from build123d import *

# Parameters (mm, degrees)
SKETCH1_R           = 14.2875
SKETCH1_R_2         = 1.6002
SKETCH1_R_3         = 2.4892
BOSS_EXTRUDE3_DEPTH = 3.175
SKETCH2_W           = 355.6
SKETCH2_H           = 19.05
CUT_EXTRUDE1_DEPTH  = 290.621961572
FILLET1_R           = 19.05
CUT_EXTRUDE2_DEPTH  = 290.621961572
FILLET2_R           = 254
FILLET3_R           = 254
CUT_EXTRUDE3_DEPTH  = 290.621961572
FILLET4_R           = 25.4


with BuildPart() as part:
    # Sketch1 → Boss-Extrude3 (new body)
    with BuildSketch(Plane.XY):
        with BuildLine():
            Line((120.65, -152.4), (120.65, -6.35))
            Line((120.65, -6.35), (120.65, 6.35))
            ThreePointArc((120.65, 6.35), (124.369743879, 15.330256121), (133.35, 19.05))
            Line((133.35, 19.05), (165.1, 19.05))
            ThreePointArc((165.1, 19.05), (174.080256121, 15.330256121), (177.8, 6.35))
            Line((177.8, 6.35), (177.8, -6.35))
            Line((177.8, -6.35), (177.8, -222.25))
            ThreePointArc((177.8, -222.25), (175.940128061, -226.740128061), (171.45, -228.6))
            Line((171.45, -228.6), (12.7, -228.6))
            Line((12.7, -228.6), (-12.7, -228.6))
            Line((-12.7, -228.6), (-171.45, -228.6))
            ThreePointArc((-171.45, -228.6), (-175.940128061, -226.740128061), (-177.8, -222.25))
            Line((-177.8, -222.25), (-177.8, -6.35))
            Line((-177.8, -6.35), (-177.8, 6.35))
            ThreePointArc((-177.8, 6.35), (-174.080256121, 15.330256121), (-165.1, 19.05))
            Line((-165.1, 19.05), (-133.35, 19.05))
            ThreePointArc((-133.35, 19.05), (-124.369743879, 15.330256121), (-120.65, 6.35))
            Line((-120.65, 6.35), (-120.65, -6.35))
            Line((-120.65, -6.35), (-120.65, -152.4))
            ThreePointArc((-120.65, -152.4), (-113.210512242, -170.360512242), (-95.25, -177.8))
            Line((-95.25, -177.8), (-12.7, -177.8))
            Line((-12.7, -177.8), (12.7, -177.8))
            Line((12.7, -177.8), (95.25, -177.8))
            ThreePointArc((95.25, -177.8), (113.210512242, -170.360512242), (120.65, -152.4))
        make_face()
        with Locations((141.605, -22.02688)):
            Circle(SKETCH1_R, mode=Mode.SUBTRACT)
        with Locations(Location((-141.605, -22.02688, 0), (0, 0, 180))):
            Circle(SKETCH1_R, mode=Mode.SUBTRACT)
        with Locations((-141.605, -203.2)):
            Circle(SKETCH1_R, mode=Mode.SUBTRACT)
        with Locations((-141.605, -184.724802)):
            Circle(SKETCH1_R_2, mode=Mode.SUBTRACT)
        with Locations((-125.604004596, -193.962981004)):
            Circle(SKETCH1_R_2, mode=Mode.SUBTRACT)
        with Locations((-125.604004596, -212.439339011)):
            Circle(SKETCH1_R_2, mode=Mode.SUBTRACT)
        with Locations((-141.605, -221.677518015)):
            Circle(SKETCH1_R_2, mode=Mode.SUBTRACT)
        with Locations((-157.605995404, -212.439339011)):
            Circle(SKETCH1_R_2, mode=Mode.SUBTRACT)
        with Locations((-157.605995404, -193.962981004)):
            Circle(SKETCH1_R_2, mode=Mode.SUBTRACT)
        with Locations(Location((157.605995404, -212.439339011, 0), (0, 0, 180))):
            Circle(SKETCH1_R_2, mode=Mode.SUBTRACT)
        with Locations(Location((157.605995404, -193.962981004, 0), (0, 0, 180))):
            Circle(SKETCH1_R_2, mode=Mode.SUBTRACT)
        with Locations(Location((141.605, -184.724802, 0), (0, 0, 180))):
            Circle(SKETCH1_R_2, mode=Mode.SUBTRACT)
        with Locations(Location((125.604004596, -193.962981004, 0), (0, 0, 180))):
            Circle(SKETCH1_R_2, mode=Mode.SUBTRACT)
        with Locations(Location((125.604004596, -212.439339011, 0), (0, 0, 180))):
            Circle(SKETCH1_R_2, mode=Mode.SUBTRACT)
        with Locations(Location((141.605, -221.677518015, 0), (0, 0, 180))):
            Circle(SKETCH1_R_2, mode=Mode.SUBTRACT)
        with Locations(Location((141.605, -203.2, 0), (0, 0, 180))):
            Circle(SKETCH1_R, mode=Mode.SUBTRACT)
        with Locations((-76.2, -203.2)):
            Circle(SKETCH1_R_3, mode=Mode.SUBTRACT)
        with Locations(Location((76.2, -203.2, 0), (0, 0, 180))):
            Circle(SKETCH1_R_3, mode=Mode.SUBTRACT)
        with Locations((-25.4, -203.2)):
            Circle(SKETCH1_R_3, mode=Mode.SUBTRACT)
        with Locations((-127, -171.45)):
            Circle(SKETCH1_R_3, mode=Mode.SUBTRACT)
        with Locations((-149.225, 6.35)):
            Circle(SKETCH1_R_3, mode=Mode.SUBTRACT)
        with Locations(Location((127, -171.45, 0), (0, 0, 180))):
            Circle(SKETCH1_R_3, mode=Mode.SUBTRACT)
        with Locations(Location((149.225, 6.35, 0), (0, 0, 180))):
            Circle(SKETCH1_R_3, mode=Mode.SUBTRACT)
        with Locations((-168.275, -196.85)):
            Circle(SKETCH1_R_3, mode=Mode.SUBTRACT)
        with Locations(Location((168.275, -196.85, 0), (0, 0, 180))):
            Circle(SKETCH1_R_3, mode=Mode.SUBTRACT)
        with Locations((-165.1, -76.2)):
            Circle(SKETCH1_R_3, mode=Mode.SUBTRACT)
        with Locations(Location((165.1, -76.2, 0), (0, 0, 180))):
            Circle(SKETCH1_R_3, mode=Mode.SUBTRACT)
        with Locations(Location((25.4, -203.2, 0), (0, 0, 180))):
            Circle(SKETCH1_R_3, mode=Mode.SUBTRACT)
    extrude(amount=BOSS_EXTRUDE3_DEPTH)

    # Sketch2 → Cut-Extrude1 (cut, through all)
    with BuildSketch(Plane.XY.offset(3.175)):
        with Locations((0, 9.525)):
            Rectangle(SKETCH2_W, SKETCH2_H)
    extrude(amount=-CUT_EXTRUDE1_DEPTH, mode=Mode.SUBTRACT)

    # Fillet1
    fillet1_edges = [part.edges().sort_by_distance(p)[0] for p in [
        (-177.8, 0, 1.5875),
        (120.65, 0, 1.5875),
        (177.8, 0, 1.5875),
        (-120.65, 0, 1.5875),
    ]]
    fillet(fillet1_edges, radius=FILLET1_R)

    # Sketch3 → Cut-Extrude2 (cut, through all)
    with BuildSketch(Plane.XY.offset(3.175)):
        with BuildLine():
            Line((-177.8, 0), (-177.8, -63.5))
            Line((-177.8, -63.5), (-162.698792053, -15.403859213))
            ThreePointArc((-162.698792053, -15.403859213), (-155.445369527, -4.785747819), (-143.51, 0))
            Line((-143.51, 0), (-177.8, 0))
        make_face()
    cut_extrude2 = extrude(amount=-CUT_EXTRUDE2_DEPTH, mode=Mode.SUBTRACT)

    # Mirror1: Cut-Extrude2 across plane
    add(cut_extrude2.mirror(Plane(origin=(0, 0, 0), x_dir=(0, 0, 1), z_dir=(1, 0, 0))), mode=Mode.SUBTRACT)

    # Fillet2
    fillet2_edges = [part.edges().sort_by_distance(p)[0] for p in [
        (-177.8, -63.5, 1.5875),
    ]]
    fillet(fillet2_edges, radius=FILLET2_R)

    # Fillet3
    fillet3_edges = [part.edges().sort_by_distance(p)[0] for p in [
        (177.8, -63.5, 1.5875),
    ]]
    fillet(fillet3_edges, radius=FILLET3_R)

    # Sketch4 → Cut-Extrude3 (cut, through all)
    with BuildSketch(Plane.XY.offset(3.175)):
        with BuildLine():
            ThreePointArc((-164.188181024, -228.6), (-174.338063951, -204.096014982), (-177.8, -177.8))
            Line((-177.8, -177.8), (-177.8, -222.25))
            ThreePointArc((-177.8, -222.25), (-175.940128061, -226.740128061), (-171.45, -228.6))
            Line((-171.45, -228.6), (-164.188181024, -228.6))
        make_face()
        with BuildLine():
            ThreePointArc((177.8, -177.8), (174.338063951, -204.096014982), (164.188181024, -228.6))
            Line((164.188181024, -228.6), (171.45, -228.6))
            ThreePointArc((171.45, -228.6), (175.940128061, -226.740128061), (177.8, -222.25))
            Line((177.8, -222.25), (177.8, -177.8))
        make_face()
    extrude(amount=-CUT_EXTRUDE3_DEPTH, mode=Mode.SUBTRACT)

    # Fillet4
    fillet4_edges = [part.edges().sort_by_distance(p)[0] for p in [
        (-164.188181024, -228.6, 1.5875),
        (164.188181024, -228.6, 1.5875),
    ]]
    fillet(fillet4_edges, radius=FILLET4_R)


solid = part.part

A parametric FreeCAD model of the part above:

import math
import FreeCAD as App
import Part
import Sketcher

V = App.Vector
Q = App.Units.Quantity


def edges_at(feature, points):
    """Names of the edges that pass closest to the given points."""
    edges = feature.Shape.Edges
    near = lambda p: min(range(len(edges)), key=lambda i: edges[i].distToShape(Part.Vertex(*p))[0])
    return sorted({f"Edge{near(p) + 1}" for p in points})

doc = App.newDocument("Part")
body = doc.addObject("PartDesign::Body", "Body")

sketch1 = body.newObject("Sketcher::SketchObject", "Sketch")
sketch1.AttachmentSupport = (doc.getObject("XY_Plane"), [""])
sketch1.MapMode = "FlatFace"
sketch1.addGeometry(Part.LineSegment(V(120.7, 6.3, 0), V(120.7, -152.4, 0)), False)
sketch1.addGeometry(Part.ArcOfCircle(Part.Circle(V(95.2, -152.4, 0), V(0, 0, 1), 25.4), math.radians(-90), math.radians(0)), False)
sketch1.addGeometry(Part.LineSegment(V(95.2, -177.8, 0), V(-95.2, -177.8, 0)), False)
sketch1.addGeometry(Part.ArcOfCircle(Part.Circle(V(-95.2, -152.4, 0), V(0, 0, 1), 25.4), math.radians(180), math.radians(270)), False)
sketch1.addGeometry(Part.LineSegment(V(-120.7, -152.4, 0), V(-120.7, 6.3, 0)), False)
sketch1.addGeometry(Part.ArcOfCircle(Part.Circle(V(-133.3, 6.3, 0), V(0, 0, 1), 12.7), math.radians(0), math.radians(90)), False)
sketch1.addGeometry(Part.LineSegment(V(-133.3, 19.1, 0), V(-165.1, 19.1, 0)), False)
sketch1.addGeometry(Part.ArcOfCircle(Part.Circle(V(-165.1, 6.3, 0), V(0, 0, 1), 12.7), math.radians(90), math.radians(180)), False)
sketch1.addGeometry(Part.LineSegment(V(-177.8, 6.3, 0), V(-177.8, -222.2, 0)), False)
sketch1.addGeometry(Part.ArcOfCircle(Part.Circle(V(-171.5, -222.3, 0), V(0, 0, 1), 6.3), math.radians(180), math.radians(270)), False)
sketch1.addGeometry(Part.LineSegment(V(-171.4, -228.6, 0), V(171.4, -228.6, 0)), False)
sketch1.addGeometry(Part.ArcOfCircle(Part.Circle(V(171.5, -222.3, 0), V(0, 0, 1), 6.3), math.radians(-90), math.radians(0)), False)
sketch1.addGeometry(Part.LineSegment(V(177.8, -222.2, 0), V(177.8, 6.3, 0)), False)
sketch1.addGeometry(Part.ArcOfCircle(Part.Circle(V(165.1, 6.3, 0), V(0, 0, 1), 12.7), math.radians(0), math.radians(90)), False)
sketch1.addGeometry(Part.LineSegment(V(165.1, 19.1, 0), V(133.3, 19.1, 0)), False)
sketch1.addGeometry(Part.ArcOfCircle(Part.Circle(V(133.3, 6.3, 0), V(0, 0, 1), 12.7), math.radians(90), math.radians(180)), False)
sketch1.addGeometry(Part.Circle(V(157.6, -212.4, 0), V(0, 0, 1), 1.6), False)
sketch1.addGeometry(Part.Circle(V(141.6, -221.7, 0), V(0, 0, 1), 1.6), False)
sketch1.addGeometry(Part.Circle(V(168.3, -196.8, 0), V(0, 0, 1), 2.5), False)
sketch1.addGeometry(Part.Circle(V(141.6, -203.2, 0), V(0, 0, 1), 14.3), False)
sketch1.addGeometry(Part.Circle(V(125.6, -212.4, 0), V(0, 0, 1), 1.6), False)
sketch1.addGeometry(Part.Circle(V(157.6, -194, 0), V(0, 0, 1), 1.6), False)
sketch1.addGeometry(Part.Circle(V(141.6, -184.7, 0), V(0, 0, 1), 1.6), False)
sketch1.addGeometry(Part.Circle(V(125.6, -194, 0), V(0, 0, 1), 1.6), False)
sketch1.addGeometry(Part.Circle(V(127, -171.4, 0), V(0, 0, 1), 2.5), False)
sketch1.addGeometry(Part.Circle(V(76.2, -203.2, 0), V(0, 0, 1), 2.5), False)
sketch1.addGeometry(Part.Circle(V(25.4, -203.2, 0), V(0, 0, 1), 2.5), False)
sketch1.addGeometry(Part.Circle(V(-25.4, -203.2, 0), V(0, 0, 1), 2.5), False)
sketch1.addGeometry(Part.Circle(V(-76.2, -203.2, 0), V(0, 0, 1), 2.5), False)
sketch1.addGeometry(Part.Circle(V(-125.6, -212.4, 0), V(0, 0, 1), 1.6), False)
sketch1.addGeometry(Part.Circle(V(-141.6, -221.7, 0), V(0, 0, 1), 1.6), False)
sketch1.addGeometry(Part.Circle(V(-157.6, -212.4, 0), V(0, 0, 1), 1.6), False)
sketch1.addGeometry(Part.Circle(V(-141.6, -203.2, 0), V(0, 0, 1), 14.3), False)
sketch1.addGeometry(Part.Circle(V(-168.3, -196.8, 0), V(0, 0, 1), 2.5), False)
sketch1.addGeometry(Part.Circle(V(-125.6, -194, 0), V(0, 0, 1), 1.6), False)
sketch1.addGeometry(Part.Circle(V(-127, -171.4, 0), V(0, 0, 1), 2.5), False)
sketch1.addGeometry(Part.Circle(V(-141.6, -184.7, 0), V(0, 0, 1), 1.6), False)
sketch1.addGeometry(Part.Circle(V(-157.6, -194, 0), V(0, 0, 1), 1.6), False)
sketch1.addGeometry(Part.Circle(V(165.1, -76.2, 0), V(0, 0, 1), 2.5), False)
sketch1.addGeometry(Part.Circle(V(141.6, -22, 0), V(0, 0, 1), 14.3), False)
sketch1.addGeometry(Part.Circle(V(149.2, 6.3, 0), V(0, 0, 1), 2.5), False)
sketch1.addGeometry(Part.Circle(V(-165.1, -76.2, 0), V(0, 0, 1), 2.5), False)
sketch1.addGeometry(Part.Circle(V(-141.6, -22, 0), V(0, 0, 1), 14.3), False)
sketch1.addGeometry(Part.Circle(V(-149.2, 6.3, 0), V(0, 0, 1), 2.5), False)
sketch1.addConstraint(Sketcher.Constraint("Tangent", 0, 2, 1, 2))
sketch1.addConstraint(Sketcher.Constraint("Tangent", 1, 1, 2, 1))
sketch1.addConstraint(Sketcher.Constraint("Tangent", 2, 2, 3, 2))
sketch1.addConstraint(Sketcher.Constraint("Tangent", 3, 1, 4, 1))
sketch1.addConstraint(Sketcher.Constraint("Tangent", 4, 2, 5, 1))
sketch1.addConstraint(Sketcher.Constraint("Tangent", 5, 2, 6, 1))
sketch1.addConstraint(Sketcher.Constraint("Tangent", 6, 2, 7, 1))
sketch1.addConstraint(Sketcher.Constraint("Tangent", 7, 2, 8, 1))
sketch1.addConstraint(Sketcher.Constraint("Tangent", 8, 2, 9, 1))
sketch1.addConstraint(Sketcher.Constraint("Tangent", 9, 2, 10, 1))
sketch1.addConstraint(Sketcher.Constraint("Tangent", 10, 2, 11, 1))
sketch1.addConstraint(Sketcher.Constraint("Tangent", 11, 2, 12, 1))
sketch1.addConstraint(Sketcher.Constraint("Tangent", 12, 2, 13, 1))
sketch1.addConstraint(Sketcher.Constraint("Tangent", 13, 2, 14, 1))
sketch1.addConstraint(Sketcher.Constraint("Tangent", 14, 2, 15, 1))
sketch1.addConstraint(Sketcher.Constraint("Tangent", 15, 2, 0, 1))
sketch1.addConstraint(Sketcher.Constraint("Vertical", 0))
sketch1.addConstraint(Sketcher.Constraint("Horizontal", 2))
sketch1.addConstraint(Sketcher.Constraint("Vertical", 4))
sketch1.addConstraint(Sketcher.Constraint("Horizontal", 6))
sketch1.addConstraint(Sketcher.Constraint("Vertical", 8))
sketch1.addConstraint(Sketcher.Constraint("Horizontal", 10))
sketch1.addConstraint(Sketcher.Constraint("Vertical", 12))
sketch1.addConstraint(Sketcher.Constraint("Horizontal", 14))
sketch1.addConstraint(Sketcher.Constraint("Equal", 1, 3))
sketch1.addConstraint(Sketcher.Constraint("Equal", 5, 7))
sketch1.addConstraint(Sketcher.Constraint("Equal", 9, 11))
sketch1.addConstraint(Sketcher.Constraint("Equal", 7, 13))
sketch1.addConstraint(Sketcher.Constraint("Equal", 13, 15))
sketch1.addConstraint(Sketcher.Constraint("Equal", 16, 17))
sketch1.addConstraint(Sketcher.Constraint("Equal", 17, 20))
sketch1.addConstraint(Sketcher.Constraint("Equal", 20, 21))
sketch1.addConstraint(Sketcher.Constraint("Equal", 21, 22))
sketch1.addConstraint(Sketcher.Constraint("Equal", 22, 23))
sketch1.addConstraint(Sketcher.Constraint("Equal", 18, 24))
sketch1.addConstraint(Sketcher.Constraint("Equal", 24, 25))
sketch1.addConstraint(Sketcher.Constraint("Equal", 25, 26))
sketch1.addConstraint(Sketcher.Constraint("Equal", 26, 27))
sketch1.addConstraint(Sketcher.Constraint("Equal", 27, 28))
sketch1.addConstraint(Sketcher.Constraint("Equal", 23, 29))
sketch1.addConstraint(Sketcher.Constraint("Equal", 29, 30))
sketch1.addConstraint(Sketcher.Constraint("Equal", 30, 31))
sketch1.addConstraint(Sketcher.Constraint("Equal", 19, 32))
sketch1.addConstraint(Sketcher.Constraint("Equal", 28, 33))
sketch1.addConstraint(Sketcher.Constraint("Equal", 31, 34))
sketch1.addConstraint(Sketcher.Constraint("Equal", 33, 35))
sketch1.addConstraint(Sketcher.Constraint("Equal", 34, 36))
sketch1.addConstraint(Sketcher.Constraint("Equal", 36, 37))
sketch1.addConstraint(Sketcher.Constraint("Equal", 35, 38))
sketch1.addConstraint(Sketcher.Constraint("Equal", 32, 39))
sketch1.addConstraint(Sketcher.Constraint("Equal", 38, 40))
sketch1.addConstraint(Sketcher.Constraint("Equal", 40, 41))
sketch1.addConstraint(Sketcher.Constraint("Equal", 39, 42))
sketch1.addConstraint(Sketcher.Constraint("Equal", 41, 43))
sketch1.addConstraint(Sketcher.Constraint("Symmetric", 7, 3, 13, 3, -2))
sketch1.addConstraint(Sketcher.Constraint("Symmetric", 26, 3, 27, 3, -2))
sketch1.addConstraint(Sketcher.Constraint("Symmetric", 25, 3, 28, 3, -2))
sketch1.addConstraint(Sketcher.Constraint("Symmetric", 20, 3, 29, 3, -2))
sketch1.addConstraint(Sketcher.Constraint("Symmetric", 17, 3, 30, 3, -2))
sketch1.addConstraint(Sketcher.Constraint("Symmetric", 16, 3, 31, 3, -2))
sketch1.addConstraint(Sketcher.Constraint("Symmetric", 19, 3, 32, 3, -2))
sketch1.addConstraint(Sketcher.Constraint("Symmetric", 18, 3, 33, 3, -2))
sketch1.addConstraint(Sketcher.Constraint("Symmetric", 23, 3, 34, 3, -2))
sketch1.addConstraint(Sketcher.Constraint("Symmetric", 24, 3, 35, 3, -2))
sketch1.addConstraint(Sketcher.Constraint("Symmetric", 22, 3, 36, 3, -2))
sketch1.addConstraint(Sketcher.Constraint("Symmetric", 21, 3, 37, 3, -2))
sketch1.addConstraint(Sketcher.Constraint("Symmetric", 38, 3, 41, 3, -2))
sketch1.addConstraint(Sketcher.Constraint("Symmetric", 39, 3, 42, 3, -2))
sketch1.addConstraint(Sketcher.Constraint("Symmetric", 40, 3, 43, 3, -2))
sketch1.addConstraint(Sketcher.Constraint("Horizontal", 16, 3, 20, 3))
sketch1.addConstraint(Sketcher.Constraint("Horizontal", 21, 3, 23, 3))
sketch1.addConstraint(Sketcher.Constraint("Horizontal", 19, 3, 25, 3))
sketch1.addConstraint(Sketcher.Constraint("Horizontal", 25, 3, 26, 3))
sketch1.addConstraint(Sketcher.Constraint("Horizontal", 15, 3, 40, 3))
sketch1.addConstraint(Sketcher.Constraint("Vertical", 17, 3, 19, 3))
sketch1.addConstraint(Sketcher.Constraint("Vertical", 16, 3, 21, 3))
sketch1.addConstraint(Sketcher.Constraint("Vertical", 19, 3, 22, 3))
sketch1.addConstraint(Sketcher.Constraint("Vertical", 20, 3, 23, 3))
sketch1.addConstraint(Sketcher.Constraint("Vertical", 13, 3, 38, 3))
sketch1.addConstraint(Sketcher.Constraint("Vertical", 22, 3, 39, 3))
sketch1.addConstraint(Sketcher.Constraint("Equal", 6, 14))
sketch1.addConstraint(Sketcher.Constraint("Radius", 1, Q("1 in")))
sketch1.addConstraint(Sketcher.Constraint("Radius", 5, Q("0.5 in")))
sketch1.addConstraint(Sketcher.Constraint("DistanceY", 8, 2, 8, 1, Q("9 in")))
sketch1.addConstraint(Sketcher.Constraint("Radius", 9, Q("0.25 in")))
sketch1.addConstraint(Sketcher.Constraint("Diameter", 16, Q("0.126 in")))
sketch1.addConstraint(Sketcher.Constraint("Diameter", 18, Q("0.196 in")))
sketch1.addConstraint(Sketcher.Constraint("Diameter", 19, Q("1.125 in")))
sketch1.addConstraint(Sketcher.Constraint("DistanceX", 2, 2, 2, 1, Q("7.5 in")))
sketch1.addConstraint(Sketcher.Constraint("DistanceX", 10, 1, 10, 2, Q("13.5 in")))
sketch1.addConstraint(Sketcher.Constraint("DistanceY", 1, 3, -1, 1, Q("6 in")))
sketch1.addConstraint(Sketcher.Constraint("DistanceY", 19, 3, -1, 1, Q("8 in")))
sketch1.addConstraint(Sketcher.Constraint("DistanceX", -1, 1, 24, 3, Q("5 in")))
sketch1.addConstraint(Sketcher.Constraint("DistanceX", -1, 1, 25, 3, Q("3 in")))
sketch1.addConstraint(Sketcher.Constraint("DistanceX", -1, 1, 26, 3, Q("1 in")))
sketch1.addConstraint(Sketcher.Constraint("DistanceY", 38, 3, -1, 1, Q("3 in")))
sketch1.addConstraint(Sketcher.Constraint("DistanceY", 9, 2, -1, 1, Q("9 in")))
sketch1.addConstraint(Sketcher.Constraint("DistanceY", 11, 3, 18, 3, Q("1 in")))
sketch1.addConstraint(Sketcher.Constraint("DistanceY", 33, 3, 35, 3, Q("1 in")))
sketch1.addConstraint(Sketcher.Constraint("DistanceX", 39, 3, 40, 3, Q("0.3 in")))
sketch1.addConstraint(Sketcher.Constraint("DistanceX", 17, 3, 18, 3, Q("1.05 in")))
sketch1.addConstraint(Sketcher.Constraint("DistanceX", -1, 1, 17, 3, Q("5.575 in")))
sketch1.addConstraint(Sketcher.Constraint("DistanceY", 39, 3, -1, 1, Q("0.8672 in")))
sketch1.addConstraint(Sketcher.Constraint("DistanceY", 16, 3, -1, 1, Q("212.439339 mm")))
sketch1.addConstraint(Sketcher.Constraint("DistanceY", 17, 3, -1, 1, Q("221.677518 mm")))
sketch1.addConstraint(Sketcher.Constraint("DistanceY", 21, 3, -1, 1, Q("193.962981 mm")))
sketch1.addConstraint(Sketcher.Constraint("DistanceX", 20, 3, 16, 3, Q("32.001991 mm")))
sketch1.addConstraint(Sketcher.Constraint("DistanceY", 21, 3, 22, 3, Q("9.238179 mm")))
sketch1.addConstraint(Sketcher.Constraint("DistanceX", -1, 1, 16, 3, Q("157.605995 mm")))
pad1 = body.newObject("PartDesign::Pad", "Pad")
pad1.Profile = sketch1
pad1.Length = Q("0.125 in")

sketch2 = body.newObject("Sketcher::SketchObject", "Sketch001")
sketch2.AttachmentSupport = (doc.getObject("XY_Plane"), [""])
sketch2.MapMode = "FlatFace"
sketch2.AttachmentOffset = App.Placement(V(0, 0, 0.125 * 25.4), App.Rotation())
sketch2.addGeometry(Part.LineSegment(V(-178, 19, 0), V(-178, 0, 0)), False)
sketch2.addGeometry(Part.LineSegment(V(-178, 0, 0), V(178, 0, 0)), False)
sketch2.addGeometry(Part.LineSegment(V(178, 0, 0), V(178, 19, 0)), False)
sketch2.addGeometry(Part.LineSegment(V(178, 19, 0), V(-178, 19, 0)), False)
sketch2.addConstraint(Sketcher.Constraint("Coincident", 0, 2, 1, 1))
sketch2.addConstraint(Sketcher.Constraint("Coincident", 1, 2, 2, 1))
sketch2.addConstraint(Sketcher.Constraint("Coincident", 2, 2, 3, 1))
sketch2.addConstraint(Sketcher.Constraint("Coincident", 3, 2, 0, 1))
sketch2.addConstraint(Sketcher.Constraint("Vertical", 0))
sketch2.addConstraint(Sketcher.Constraint("Horizontal", 1))
sketch2.addConstraint(Sketcher.Constraint("Vertical", 2))
sketch2.addConstraint(Sketcher.Constraint("Horizontal", 3))
sketch2.addConstraint(Sketcher.Constraint("Symmetric", 0, 2, 1, 2, -1, 1))
sketch2.addConstraint(Sketcher.Constraint("DistanceX", 1, 1, 1, 2, Q("14 in")))
sketch2.addConstraint(Sketcher.Constraint("DistanceY", 0, 2, 0, 1, Q("0.75 in")))
pocket1 = body.newObject("PartDesign::Pocket", "Pocket")
pocket1.Profile = sketch2
pocket1.Type = "ThroughAll"
doc.recompute()

fillet = body.newObject("PartDesign::Fillet", "Fillet")
fillet.Base = (pocket1, edges_at(pocket1, [
    (-177.8, 0, 1.587),
    (120.65, 0, 1.587),
    (177.8, 0, 1.587),
    (-120.65, 0, 1.587),
]))
fillet.Radius = Q("0.75 in")

sketch3 = body.newObject("Sketcher::SketchObject", "Sketch002")
sketch3.AttachmentSupport = (doc.getObject("XY_Plane"), [""])
sketch3.MapMode = "FlatFace"
sketch3.AttachmentOffset = App.Placement(V(0, 0, 0.125 * 25.4), App.Rotation())
sketch3.addGeometry(Part.LineSegment(V(-178, 0, 0), V(-178, -64, 0)), False)
sketch3.addGeometry(Part.LineSegment(V(-178, -64, 0), V(-163, -15, 0)), False)
sketch3.addGeometry(Part.ArcOfCircle(Part.Circle(V(-142, -22, 0), V(0, 0, 1), 22), math.radians(95), math.radians(163)), False)
sketch3.addGeometry(Part.LineSegment(V(-144, 0, 0), V(-178, 0, 0)), False)
sketch3.addConstraint(Sketcher.Constraint("Coincident", 0, 2, 1, 1))
sketch3.addConstraint(Sketcher.Constraint("Tangent", 1, 2, 2, 2))
sketch3.addConstraint(Sketcher.Constraint("Coincident", 2, 1, 3, 1))
sketch3.addConstraint(Sketcher.Constraint("Coincident", 3, 2, 0, 1))
sketch3.addConstraint(Sketcher.Constraint("Vertical", 0))
sketch3.addConstraint(Sketcher.Constraint("Horizontal", 3))
sketch3.addConstraint(Sketcher.Constraint("PointOnObject", 2, 1, -1))
sketch3.addConstraint(Sketcher.Constraint("DistanceY", 0, 2, 0, 1, Q("2.5 in")))
sketch3.addConstraint(Sketcher.Constraint("DistanceX", 0, 2, -1, 1, Q("7 in")))
sketch3.addConstraint(Sketcher.Constraint("DistanceX", 3, 2, 3, 1, Q("1.35 in")))
sketch3.addConstraint(Sketcher.Constraint("DistanceX", 2, 3, -1, 1, Q("5.575 in")))
sketch3.addConstraint(Sketcher.Constraint("DistanceY", 2, 3, -1, 1, Q("0.8672 in")))
pocket2 = body.newObject("PartDesign::Pocket", "Pocket001")
pocket2.Profile = sketch3
pocket2.Type = "ThroughAll"
doc.recompute()

mirrored = body.newObject("PartDesign::Mirrored", "Mirrored")
mirrored.Originals = [pocket2]
mirrored.MirrorPlane = (doc.getObject("YZ_Plane"), [""])
body.Tip = mirrored
doc.recompute()

fillet2 = body.newObject("PartDesign::Fillet", "Fillet001")
fillet2.Base = (mirrored, edges_at(mirrored, [(-177.8, -63.5, 1.587)]))
fillet2.Radius = Q("10 in")
doc.recompute()

fillet3 = body.newObject("PartDesign::Fillet", "Fillet002")
fillet3.Base = (fillet2, edges_at(fillet2, [(177.8, -63.5, 1.587)]))
fillet3.Radius = Q("10 in")

sketch4 = body.newObject("Sketcher::SketchObject", "Sketch003")
sketch4.AttachmentSupport = (doc.getObject("XY_Plane"), [""])
sketch4.MapMode = "FlatFace"
sketch4.AttachmentOffset = App.Placement(V(0, 0, 0.125 * 25.4), App.Rotation())
sketch4.addGeometry(Part.ArcOfCircle(Part.Circle(V(-76, -178, 0), V(0, 0, 1), 102), math.radians(180), math.radians(210)), False)
sketch4.addGeometry(Part.LineSegment(V(-178, -178, 0), V(-178, -222, 0)), False)
sketch4.addGeometry(Part.ArcOfCircle(Part.Circle(V(-171, -222, 0), V(0, 0, 1), 6), math.radians(180), math.radians(270)), False)
sketch4.addGeometry(Part.LineSegment(V(-171, -229, 0), V(-164, -229, 0)), False)
sketch4.addGeometry(Part.ArcOfCircle(Part.Circle(V(76, -178, 0), V(0, 0, 1), 102), math.radians(-30), math.radians(0)), False)
sketch4.addGeometry(Part.LineSegment(V(164, -229, 0), V(171, -229, 0)), False)
sketch4.addGeometry(Part.ArcOfCircle(Part.Circle(V(171, -222, 0), V(0, 0, 1), 6), math.radians(-90), math.radians(0)), False)
sketch4.addGeometry(Part.LineSegment(V(178, -222, 0), V(178, -178, 0)), False)
sketch4.addConstraint(Sketcher.Constraint("Tangent", 0, 1, 1, 1))
sketch4.addConstraint(Sketcher.Constraint("Tangent", 1, 2, 2, 1))
sketch4.addConstraint(Sketcher.Constraint("Tangent", 2, 2, 3, 1))
sketch4.addConstraint(Sketcher.Constraint("Coincident", 3, 2, 0, 2))
sketch4.addConstraint(Sketcher.Constraint("Coincident", 4, 1, 5, 1))
sketch4.addConstraint(Sketcher.Constraint("Tangent", 5, 2, 6, 1))
sketch4.addConstraint(Sketcher.Constraint("Tangent", 6, 2, 7, 1))
sketch4.addConstraint(Sketcher.Constraint("Tangent", 7, 2, 4, 2))
sketch4.addConstraint(Sketcher.Constraint("Vertical", 1))
sketch4.addConstraint(Sketcher.Constraint("Horizontal", 3))
sketch4.addConstraint(Sketcher.Constraint("Horizontal", 5))
sketch4.addConstraint(Sketcher.Constraint("Vertical", 7))
sketch4.addConstraint(Sketcher.Constraint("Equal", 0, 4))
sketch4.addConstraint(Sketcher.Constraint("Equal", 2, 6))
sketch4.addConstraint(Sketcher.Constraint("Symmetric", 0, 3, 4, 3, -2))
sketch4.addConstraint(Sketcher.Constraint("Horizontal", 2, 3, 6, 3))
sketch4.addConstraint(Sketcher.Constraint("Radius", 0, Q("4 in")))
sketch4.addConstraint(Sketcher.Constraint("Radius", 2, Q("0.25 in")))
sketch4.addConstraint(Sketcher.Constraint("DistanceX", 0, 3, -1, 1, Q("3 in")))
sketch4.addConstraint(Sketcher.Constraint("DistanceY", 0, 3, -1, 1, Q("7 in")))
sketch4.addConstraint(Sketcher.Constraint("DistanceY", 2, 2, -1, 1, Q("9 in")))
pocket3 = body.newObject("PartDesign::Pocket", "Pocket002")
pocket3.Profile = sketch4
pocket3.Type = "ThroughAll"
doc.recompute()

fillet4 = body.newObject("PartDesign::Fillet", "Fillet003")
fillet4.Base = (pocket3, edges_at(pocket3, [(-164.188, -228.6, 1.587), (164.188, -228.6, 1.587)]))
fillet4.Radius = Q("1 in")

doc.recompute()
